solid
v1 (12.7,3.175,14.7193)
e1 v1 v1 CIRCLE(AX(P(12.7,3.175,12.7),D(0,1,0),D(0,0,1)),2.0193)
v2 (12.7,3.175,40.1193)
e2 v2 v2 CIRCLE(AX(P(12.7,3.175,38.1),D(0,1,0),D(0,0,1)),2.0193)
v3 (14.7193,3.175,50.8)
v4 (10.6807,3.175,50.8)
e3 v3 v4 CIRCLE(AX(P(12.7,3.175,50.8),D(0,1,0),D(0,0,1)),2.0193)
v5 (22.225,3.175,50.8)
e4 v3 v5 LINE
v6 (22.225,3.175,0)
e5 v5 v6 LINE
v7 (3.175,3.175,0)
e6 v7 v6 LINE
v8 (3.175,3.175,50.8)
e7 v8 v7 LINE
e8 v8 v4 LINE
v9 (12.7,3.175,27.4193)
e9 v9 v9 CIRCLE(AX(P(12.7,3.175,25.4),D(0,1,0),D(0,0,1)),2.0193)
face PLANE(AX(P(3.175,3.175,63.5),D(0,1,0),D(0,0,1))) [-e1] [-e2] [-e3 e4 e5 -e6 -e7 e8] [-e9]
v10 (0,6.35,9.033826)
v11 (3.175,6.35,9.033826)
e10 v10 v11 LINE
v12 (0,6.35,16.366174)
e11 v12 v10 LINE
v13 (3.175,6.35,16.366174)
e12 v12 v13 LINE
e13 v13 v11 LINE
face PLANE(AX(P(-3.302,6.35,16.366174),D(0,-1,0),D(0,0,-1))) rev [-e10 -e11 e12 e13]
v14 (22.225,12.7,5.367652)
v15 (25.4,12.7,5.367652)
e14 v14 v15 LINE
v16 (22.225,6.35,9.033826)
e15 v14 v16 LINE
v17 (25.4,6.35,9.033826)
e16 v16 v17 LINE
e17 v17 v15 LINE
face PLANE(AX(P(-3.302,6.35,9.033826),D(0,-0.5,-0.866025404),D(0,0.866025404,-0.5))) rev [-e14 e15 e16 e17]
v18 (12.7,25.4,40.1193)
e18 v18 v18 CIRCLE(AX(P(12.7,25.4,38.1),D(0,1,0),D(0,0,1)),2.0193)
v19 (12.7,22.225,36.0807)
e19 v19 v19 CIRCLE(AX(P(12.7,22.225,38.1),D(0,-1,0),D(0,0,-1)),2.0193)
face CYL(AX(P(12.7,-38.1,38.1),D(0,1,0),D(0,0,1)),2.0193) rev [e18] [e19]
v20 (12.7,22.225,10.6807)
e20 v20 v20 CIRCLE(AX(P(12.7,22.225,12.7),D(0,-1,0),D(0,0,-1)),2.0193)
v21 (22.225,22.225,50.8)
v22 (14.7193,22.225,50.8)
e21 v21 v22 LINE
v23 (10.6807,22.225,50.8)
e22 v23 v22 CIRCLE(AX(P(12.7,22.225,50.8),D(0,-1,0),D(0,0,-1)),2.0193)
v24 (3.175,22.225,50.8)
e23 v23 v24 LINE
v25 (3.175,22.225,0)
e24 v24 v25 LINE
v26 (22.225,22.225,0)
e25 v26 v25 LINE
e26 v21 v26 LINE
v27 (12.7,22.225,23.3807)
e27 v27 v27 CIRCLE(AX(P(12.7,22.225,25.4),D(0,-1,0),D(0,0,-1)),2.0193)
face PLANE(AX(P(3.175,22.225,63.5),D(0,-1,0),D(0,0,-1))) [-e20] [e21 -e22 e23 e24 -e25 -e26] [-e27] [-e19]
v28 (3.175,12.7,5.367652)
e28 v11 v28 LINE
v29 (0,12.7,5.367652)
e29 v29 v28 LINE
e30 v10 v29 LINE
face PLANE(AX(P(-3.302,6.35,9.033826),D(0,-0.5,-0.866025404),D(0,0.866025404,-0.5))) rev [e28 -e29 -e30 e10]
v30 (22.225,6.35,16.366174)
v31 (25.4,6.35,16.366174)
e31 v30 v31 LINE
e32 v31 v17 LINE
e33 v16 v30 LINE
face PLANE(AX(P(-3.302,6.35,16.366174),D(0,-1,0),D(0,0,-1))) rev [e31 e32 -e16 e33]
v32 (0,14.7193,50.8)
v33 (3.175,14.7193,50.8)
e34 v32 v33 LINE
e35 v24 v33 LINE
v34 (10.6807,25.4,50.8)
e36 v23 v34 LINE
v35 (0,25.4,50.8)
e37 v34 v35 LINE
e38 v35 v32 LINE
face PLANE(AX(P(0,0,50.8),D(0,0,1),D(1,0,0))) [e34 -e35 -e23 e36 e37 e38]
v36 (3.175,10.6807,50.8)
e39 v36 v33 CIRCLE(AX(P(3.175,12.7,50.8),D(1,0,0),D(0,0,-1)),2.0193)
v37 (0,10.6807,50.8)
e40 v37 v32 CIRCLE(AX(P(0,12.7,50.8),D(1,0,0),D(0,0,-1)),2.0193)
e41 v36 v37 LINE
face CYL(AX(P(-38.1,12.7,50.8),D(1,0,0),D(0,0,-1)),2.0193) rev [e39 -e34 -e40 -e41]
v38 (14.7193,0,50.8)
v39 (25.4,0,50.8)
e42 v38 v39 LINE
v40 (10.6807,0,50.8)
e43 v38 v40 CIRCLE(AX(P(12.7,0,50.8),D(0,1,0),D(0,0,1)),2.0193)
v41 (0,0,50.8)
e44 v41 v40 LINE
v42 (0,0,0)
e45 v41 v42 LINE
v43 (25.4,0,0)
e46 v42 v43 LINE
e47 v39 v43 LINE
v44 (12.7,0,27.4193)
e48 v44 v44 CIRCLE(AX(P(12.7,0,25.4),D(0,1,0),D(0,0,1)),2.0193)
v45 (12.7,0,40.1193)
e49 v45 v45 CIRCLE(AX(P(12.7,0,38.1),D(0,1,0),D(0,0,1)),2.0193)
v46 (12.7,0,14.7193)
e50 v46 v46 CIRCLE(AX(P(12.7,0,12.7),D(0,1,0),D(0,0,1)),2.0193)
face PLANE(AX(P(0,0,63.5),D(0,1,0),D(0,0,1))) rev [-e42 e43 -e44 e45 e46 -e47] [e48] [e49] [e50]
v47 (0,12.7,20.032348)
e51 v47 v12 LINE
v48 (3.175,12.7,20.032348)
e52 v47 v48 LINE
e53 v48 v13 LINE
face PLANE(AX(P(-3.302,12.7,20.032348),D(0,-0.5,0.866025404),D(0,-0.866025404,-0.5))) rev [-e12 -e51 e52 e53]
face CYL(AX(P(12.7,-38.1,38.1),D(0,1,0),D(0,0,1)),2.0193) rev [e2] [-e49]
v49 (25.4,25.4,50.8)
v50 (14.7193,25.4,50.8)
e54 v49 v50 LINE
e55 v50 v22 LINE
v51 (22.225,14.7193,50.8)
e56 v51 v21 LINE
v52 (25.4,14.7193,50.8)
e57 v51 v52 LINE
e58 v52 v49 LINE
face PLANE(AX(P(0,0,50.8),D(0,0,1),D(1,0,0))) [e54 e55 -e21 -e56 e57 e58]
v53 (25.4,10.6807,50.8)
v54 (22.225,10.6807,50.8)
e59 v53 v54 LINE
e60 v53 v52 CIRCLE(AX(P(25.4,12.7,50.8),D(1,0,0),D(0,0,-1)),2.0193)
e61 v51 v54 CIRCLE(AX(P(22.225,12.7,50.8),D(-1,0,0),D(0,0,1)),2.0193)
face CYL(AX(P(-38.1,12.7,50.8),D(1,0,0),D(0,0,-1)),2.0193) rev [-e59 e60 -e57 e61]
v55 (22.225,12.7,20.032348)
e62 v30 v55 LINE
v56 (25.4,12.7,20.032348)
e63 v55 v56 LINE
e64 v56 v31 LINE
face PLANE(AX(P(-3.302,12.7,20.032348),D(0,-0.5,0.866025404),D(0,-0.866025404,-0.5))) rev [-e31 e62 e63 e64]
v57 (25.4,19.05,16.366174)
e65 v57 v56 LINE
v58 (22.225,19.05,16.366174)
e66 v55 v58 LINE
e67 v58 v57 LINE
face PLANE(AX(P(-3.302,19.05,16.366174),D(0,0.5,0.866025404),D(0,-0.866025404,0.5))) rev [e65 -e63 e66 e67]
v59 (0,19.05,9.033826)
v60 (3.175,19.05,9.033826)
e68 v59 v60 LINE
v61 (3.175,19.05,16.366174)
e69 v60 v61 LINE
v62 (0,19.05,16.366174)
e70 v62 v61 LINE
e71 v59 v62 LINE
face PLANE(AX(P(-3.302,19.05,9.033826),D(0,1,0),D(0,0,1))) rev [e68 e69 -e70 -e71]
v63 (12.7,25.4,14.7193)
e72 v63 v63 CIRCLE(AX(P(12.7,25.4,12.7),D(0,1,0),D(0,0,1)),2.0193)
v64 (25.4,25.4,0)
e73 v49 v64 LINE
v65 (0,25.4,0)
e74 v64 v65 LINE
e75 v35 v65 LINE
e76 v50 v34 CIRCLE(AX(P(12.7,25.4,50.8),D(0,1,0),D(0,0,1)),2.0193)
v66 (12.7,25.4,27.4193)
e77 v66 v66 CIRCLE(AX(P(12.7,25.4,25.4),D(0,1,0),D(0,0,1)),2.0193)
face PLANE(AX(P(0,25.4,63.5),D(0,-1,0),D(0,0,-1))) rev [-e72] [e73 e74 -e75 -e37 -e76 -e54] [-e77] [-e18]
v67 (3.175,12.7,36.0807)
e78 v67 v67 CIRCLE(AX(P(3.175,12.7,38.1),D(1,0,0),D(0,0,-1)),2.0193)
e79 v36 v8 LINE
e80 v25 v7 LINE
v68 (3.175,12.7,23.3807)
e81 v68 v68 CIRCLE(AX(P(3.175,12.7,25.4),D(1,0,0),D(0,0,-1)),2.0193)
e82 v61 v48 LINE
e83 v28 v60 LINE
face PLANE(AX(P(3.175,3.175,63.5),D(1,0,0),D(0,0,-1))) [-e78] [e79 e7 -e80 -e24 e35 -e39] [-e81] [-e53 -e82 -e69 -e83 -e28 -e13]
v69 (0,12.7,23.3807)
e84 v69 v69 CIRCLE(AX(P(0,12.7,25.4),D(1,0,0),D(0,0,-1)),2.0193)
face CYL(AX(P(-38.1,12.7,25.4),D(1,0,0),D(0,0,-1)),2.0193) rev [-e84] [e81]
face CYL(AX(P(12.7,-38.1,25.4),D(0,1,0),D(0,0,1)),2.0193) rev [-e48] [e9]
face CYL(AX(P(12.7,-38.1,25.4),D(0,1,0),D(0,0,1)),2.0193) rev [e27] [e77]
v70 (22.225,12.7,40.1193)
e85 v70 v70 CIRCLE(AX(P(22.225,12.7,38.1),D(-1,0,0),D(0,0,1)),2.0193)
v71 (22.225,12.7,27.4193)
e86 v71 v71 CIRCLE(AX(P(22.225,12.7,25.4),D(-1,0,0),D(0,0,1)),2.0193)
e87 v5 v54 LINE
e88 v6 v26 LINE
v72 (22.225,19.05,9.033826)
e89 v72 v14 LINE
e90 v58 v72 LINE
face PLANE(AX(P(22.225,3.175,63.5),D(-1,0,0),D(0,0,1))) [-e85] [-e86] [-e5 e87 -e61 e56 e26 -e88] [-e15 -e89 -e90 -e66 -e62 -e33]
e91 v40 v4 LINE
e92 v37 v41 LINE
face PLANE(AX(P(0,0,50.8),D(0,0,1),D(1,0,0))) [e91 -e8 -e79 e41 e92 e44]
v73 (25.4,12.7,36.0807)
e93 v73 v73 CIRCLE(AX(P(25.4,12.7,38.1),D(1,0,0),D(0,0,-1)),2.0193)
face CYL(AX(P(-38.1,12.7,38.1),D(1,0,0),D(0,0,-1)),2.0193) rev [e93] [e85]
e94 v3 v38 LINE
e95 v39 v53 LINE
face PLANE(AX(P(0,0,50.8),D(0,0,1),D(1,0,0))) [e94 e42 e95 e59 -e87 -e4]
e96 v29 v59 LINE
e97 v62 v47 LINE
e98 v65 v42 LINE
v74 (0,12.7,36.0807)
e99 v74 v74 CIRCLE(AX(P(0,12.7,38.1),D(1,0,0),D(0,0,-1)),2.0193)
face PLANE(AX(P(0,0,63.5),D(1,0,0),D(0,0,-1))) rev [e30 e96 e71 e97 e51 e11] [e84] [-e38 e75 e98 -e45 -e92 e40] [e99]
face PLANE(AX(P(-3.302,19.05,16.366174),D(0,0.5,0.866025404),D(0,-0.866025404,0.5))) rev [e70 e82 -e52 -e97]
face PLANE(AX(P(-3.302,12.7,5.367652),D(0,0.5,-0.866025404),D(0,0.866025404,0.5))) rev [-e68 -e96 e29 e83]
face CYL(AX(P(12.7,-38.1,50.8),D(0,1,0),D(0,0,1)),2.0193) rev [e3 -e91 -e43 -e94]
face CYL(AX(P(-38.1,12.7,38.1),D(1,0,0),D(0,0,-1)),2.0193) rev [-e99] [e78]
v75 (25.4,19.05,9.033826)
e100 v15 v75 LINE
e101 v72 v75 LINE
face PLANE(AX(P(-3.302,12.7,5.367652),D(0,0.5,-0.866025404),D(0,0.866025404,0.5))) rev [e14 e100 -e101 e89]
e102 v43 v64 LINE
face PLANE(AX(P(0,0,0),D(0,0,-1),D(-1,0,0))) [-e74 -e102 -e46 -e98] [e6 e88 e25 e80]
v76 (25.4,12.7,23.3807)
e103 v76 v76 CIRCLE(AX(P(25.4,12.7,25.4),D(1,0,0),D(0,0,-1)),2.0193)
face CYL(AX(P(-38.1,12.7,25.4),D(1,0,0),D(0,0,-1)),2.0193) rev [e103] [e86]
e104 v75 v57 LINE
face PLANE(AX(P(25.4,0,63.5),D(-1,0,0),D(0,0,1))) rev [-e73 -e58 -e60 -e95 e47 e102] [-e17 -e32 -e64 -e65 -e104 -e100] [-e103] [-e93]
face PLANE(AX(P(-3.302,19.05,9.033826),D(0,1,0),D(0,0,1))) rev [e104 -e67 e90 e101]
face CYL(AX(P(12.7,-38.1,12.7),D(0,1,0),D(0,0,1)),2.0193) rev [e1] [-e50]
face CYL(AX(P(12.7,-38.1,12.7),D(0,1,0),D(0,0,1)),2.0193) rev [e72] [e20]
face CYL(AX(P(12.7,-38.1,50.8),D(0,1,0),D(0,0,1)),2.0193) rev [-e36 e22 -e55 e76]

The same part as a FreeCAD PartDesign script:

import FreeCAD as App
import Part
import Sketcher
from FreeCAD import Vector
Q = App.Units.Quantity


def add_polygon(sketch, points):
    """Adds a closed chain of lines whose ends are joined by coincident constraints."""
    first, n = sketch.GeometryCount, len(points)
    for a, b in zip(points, points[1:] + points[:1]):
        sketch.addGeometry(Part.LineSegment(App.Vector(*a, 0), App.Vector(*b, 0)), False)
    for i in range(n):
        sketch.addConstraint(Sketcher.Constraint("Coincident", first + i, 2, first + (i + 1) % n, 1))

doc = App.newDocument("Part")
body = doc.addObject("PartDesign::Body", "Body")

# Sketch on XY plane
sketch1 = doc.addObject("Sketcher::SketchObject", "Sketch")
body.addObject(sketch1)
sketch1.AttachmentSupport = (doc.XY_Plane, [""])
sketch1.MapMode = "FlatFace"
add_polygon(sketch1, [(0, 25), (0, 0), (25, 0), (25, 25)])  # lines 0-3
add_polygon(sketch1, [(22, 3), (3, 3), (3, 22), (22, 22)])  # lines 4-7
sketch1.addConstraint(Sketcher.Constraint("Vertical", 0))
sketch1.addConstraint(Sketcher.Constraint("Horizontal", 1))
sketch1.addConstraint(Sketcher.Constraint("Vertical", 2))
sketch1.addConstraint(Sketcher.Constraint("Horizontal", 3))
sketch1.addConstraint(Sketcher.Constraint("Horizontal", 4))
sketch1.addConstraint(Sketcher.Constraint("Vertical", 5))
sketch1.addConstraint(Sketcher.Constraint("Horizontal", 6))
sketch1.addConstraint(Sketcher.Constraint("Vertical", 7))
sketch1.addConstraint(Sketcher.Constraint("Coincident", 0, 2, -1, 1))
sketch1.addConstraint(Sketcher.Constraint("Equal", 3, 0))
sketch1.addConstraint(Sketcher.Constraint("Equal", 6, 5))
sketch1.addConstraint(Sketcher.Constraint("DistanceX", 1, 1, 1, 2, Q("1 in")))
sketch1.addConstraint(Sketcher.Constraint("DistanceX", 4, 2, 4, 1, Q("0.75 in")))
sketch1.addConstraint(Sketcher.Constraint("DistanceX", -1, 1, 4, 2, Q("0.125 in")))
sketch1.addConstraint(Sketcher.Constraint("DistanceY", -1, 1, 4, 2, Q("0.125 in")))
pad1 = doc.addObject("PartDesign::Pad", "Pad")
body.addObject(pad1)
pad1.Profile = sketch1
pad1.Length = Q("2.5 in")

# Sketch on XZ plane
sketch2 = doc.addObject("Sketcher::SketchObject", "Sketch001")
body.addObject(sketch2)
sketch2.AttachmentSupport = (doc.XZ_Plane, [""])
sketch2.MapMode = "FlatFace"
sketch2.AttachmentOffset = App.Placement(Vector(0, 0, -1 * 25.4), App.Rotation())
sketch2.addGeometry(Part.Circle(Vector(12.7, 50.8, 0), Vector(0, 0, 1), 2), False)
sketch2.addGeometry(Part.Circle(Vector(12.7, 38.1, 0), Vector(0, 0, 1), 2), False)
sketch2.addGeometry(Part.Circle(Vector(12.7, 25.4, 0), Vector(0, 0, 1), 2), False)
sketch2.addGeometry(Part.Circle(Vector(12.7, 12.7, 0), Vector(0, 0, 1), 2), False)
sketch2.addConstraint(Sketcher.Constraint("Equal", 0, 1))
sketch2.addConstraint(Sketcher.Constraint("Equal", 1, 2))
sketch2.addConstraint(Sketcher.Constraint("Equal", 2, 3))
sketch2.addConstraint(Sketcher.Constraint("Vertical", 0, 3, 1, 3))
sketch2.addConstraint(Sketcher.Constraint("Vertical", 1, 3, 2, 3))
sketch2.addConstraint(Sketcher.Constraint("Vertical", 2, 3, 3, 3))
sketch2.addConstraint(Sketcher.Constraint("Diameter", 0, Q("0.159 in")))
sketch2.addConstraint(Sketcher.Constraint("DistanceY", -1, 1, 0, 3, Q("2 in")))
sketch2.addConstraint(Sketcher.Constraint("DistanceY", -1, 1, 2, 3, Q("1 in")))
sketch2.addConstraint(Sketcher.Constraint("DistanceY", 3, 3, 1, 3, Q("1 in")))
sketch2.addConstraint(Sketcher.Constraint("DistanceX", -1, 1, 0, 3, Q("0.5 in")))
sketch2.addConstraint(Sketcher.Constraint("DistanceY", -1, 1, 1, 3, Q("1.5 in")))
pocket1 = doc.addObject("PartDesign::Pocket", "Pocket")
body.addObject(pocket1)
pocket1.Profile = sketch2
pocket1.Length = Q("2.5 in")
pocket1.Reversed = True

# Sketch on YZ plane
sketch3 = doc.addObject("Sketcher::SketchObject", "Sketch002")
body.addObject(sketch3)
sketch3.AttachmentSupport = (doc.YZ_Plane, [""])
sketch3.MapMode = "FlatFace"
sketch3.AttachmentOffset = App.Placement(Vector(0, 0, 1 * 25.4), App.Rotation())
sketch3.addGeometry(Part.Circle(Vector(12.7, 50.8, 0), Vector(0, 0, 1), 2), False)
sketch3.addGeometry(Part.Circle(Vector(12.7, 38.1, 0), Vector(0, 0, 1), 2), False)
sketch3.addGeometry(Part.Circle(Vector(12.7, 25.4, 0), Vector(0, 0, 1), 2), False)
sketch3.addGeometry(Part.Circle(Vector(12.7, 12.7, 0), Vector(0, 0, 1), 2), False)
sketch3.addConstraint(Sketcher.Constraint("Equal", 0, 1))
sketch3.addConstraint(Sketcher.Constraint("Equal", 1, 2))
sketch3.addConstraint(Sketcher.Constraint("Equal", 2, 3))
sketch3.addConstraint(Sketcher.Constraint("Vertical", 0, 3, 1, 3))
sketch3.addConstraint(Sketcher.Constraint("Vertical", 1, 3, 2, 3))
sketch3.addConstraint(Sketcher.Constraint("Vertical", 2, 3, 3, 3))
sketch3.addConstraint(Sketcher.Constraint("Diameter", 0, Q("0.159 in")))
sketch3.addConstraint(Sketcher.Constraint("DistanceY", -1, 1, 0, 3, Q("2 in")))
sketch3.addConstraint(Sketcher.Constraint("DistanceY", -1, 1, 2, 3, Q("1 in")))
sketch3.addConstraint(Sketcher.Constraint("DistanceY", 3, 3, 1, 3, Q("1 in")))
sketch3.addConstraint(Sketcher.Constraint("DistanceX", -1, 1, 0, 3, Q("0.5 in")))
sketch3.addConstraint(Sketcher.Constraint("DistanceY", -1, 1, 1, 3, Q("1.5 in")))
pocket2 = doc.addObject("PartDesign::Pocket", "Pocket001")
body.addObject(pocket2)
pocket2.Profile = sketch3
pocket2.Length = Q("2.5 in")

# Sketch on YZ plane
sketch4 = doc.addObject("Sketcher::SketchObject", "Sketch003")
body.addObject(sketch4)
sketch4.AttachmentSupport = (doc.YZ_Plane, [""])
sketch4.MapMode = "FlatFace"
sketch4.AttachmentOffset = App.Placement(Vector(0, 0, 1 * 25.4), App.Rotation())
add_polygon(sketch4, [(19, 9), (19, 16), (13, 20), (6, 16), (6, 9), (13, 5)])  # lines 0-5
sketch4.addConstraint(Sketcher.Constraint("Vertical", 0))
sketch4.addConstraint(Sketcher.Constraint("Vertical", 3))
sketch4.addConstraint(Sketcher.Constraint("Parallel", 1, 4))
sketch4.addConstraint(Sketcher.Constraint("Parallel", 2, 5))
sketch4.addConstraint(Sketcher.Constraint("Horizontal", 0, 2, 2, 2))
sketch4.addConstraint(Sketcher.Constraint("Horizontal", 3, 2, 5, 2))
sketch4.addConstraint(Sketcher.Constraint("Vertical", 1, 2, 4, 2))
sketch4.addConstraint(Sketcher.Constraint("Angle", 1, Q("150 deg")))
sketch4.addConstraint(Sketcher.Constraint("DistanceX", -1, 1, 1, 2, Q("0.5 in")))
sketch4.addConstraint(Sketcher.Constraint("DistanceX", 2, 2, 0, 2, Q("0.5 in")))
sketch4.addConstraint(Sketcher.Constraint("DistanceY", 0, 1, 0, 2, Q("7.332348 mm")))
sketch4.addConstraint(Sketcher.Constraint("DistanceY", -1, 1, 1, 2, Q("20.032348 mm")))
pocket3 = doc.addObject("PartDesign::Pocket", "Pocket002")
body.addObject(pocket3)
pocket3.Profile = sketch4
pocket3.Length = Q("1.13 in")

# Sketch on XY plane
sketch5 = doc.addObject("Sketcher::SketchObject", "Sketch004")
body.addObject(sketch5)
sketch5.AttachmentSupport = (doc.XY_Plane, [""])
sketch5.MapMode = "FlatFace"
sketch5.AttachmentOffset = App.Placement(Vector(0, 0, 2.5 * 25.4), App.Rotation())
add_polygon(sketch5, [(0, 25), (0, 0), (25, 0), (25, 25)])  # lines 0-3
sketch5.addConstraint(Sketcher.Constraint("Vertical", 0))
sketch5.addConstraint(Sketcher.Constraint("Horizontal", 1))
sketch5.addConstraint(Sketcher.Constraint("Vertical", 2))
sketch5.addConstraint(Sketcher.Constraint("Horizontal", 3))
sketch5.addConstraint(Sketcher.Constraint("Coincident", 0, 2, -1, 1))
sketch5.addConstraint(Sketcher.Constraint("Equal", 3, 0))
sketch5.addConstraint(Sketcher.Constraint("DistanceX", 1, 1, 1, 2, Q("1 in")))
pocket4 = doc.addObject("PartDesign::Pocket", "Pocket003")
body.addObject(pocket4)
pocket4.Profile = sketch5
pocket4.Length = Q("0.5 in")

doc.recompute()
